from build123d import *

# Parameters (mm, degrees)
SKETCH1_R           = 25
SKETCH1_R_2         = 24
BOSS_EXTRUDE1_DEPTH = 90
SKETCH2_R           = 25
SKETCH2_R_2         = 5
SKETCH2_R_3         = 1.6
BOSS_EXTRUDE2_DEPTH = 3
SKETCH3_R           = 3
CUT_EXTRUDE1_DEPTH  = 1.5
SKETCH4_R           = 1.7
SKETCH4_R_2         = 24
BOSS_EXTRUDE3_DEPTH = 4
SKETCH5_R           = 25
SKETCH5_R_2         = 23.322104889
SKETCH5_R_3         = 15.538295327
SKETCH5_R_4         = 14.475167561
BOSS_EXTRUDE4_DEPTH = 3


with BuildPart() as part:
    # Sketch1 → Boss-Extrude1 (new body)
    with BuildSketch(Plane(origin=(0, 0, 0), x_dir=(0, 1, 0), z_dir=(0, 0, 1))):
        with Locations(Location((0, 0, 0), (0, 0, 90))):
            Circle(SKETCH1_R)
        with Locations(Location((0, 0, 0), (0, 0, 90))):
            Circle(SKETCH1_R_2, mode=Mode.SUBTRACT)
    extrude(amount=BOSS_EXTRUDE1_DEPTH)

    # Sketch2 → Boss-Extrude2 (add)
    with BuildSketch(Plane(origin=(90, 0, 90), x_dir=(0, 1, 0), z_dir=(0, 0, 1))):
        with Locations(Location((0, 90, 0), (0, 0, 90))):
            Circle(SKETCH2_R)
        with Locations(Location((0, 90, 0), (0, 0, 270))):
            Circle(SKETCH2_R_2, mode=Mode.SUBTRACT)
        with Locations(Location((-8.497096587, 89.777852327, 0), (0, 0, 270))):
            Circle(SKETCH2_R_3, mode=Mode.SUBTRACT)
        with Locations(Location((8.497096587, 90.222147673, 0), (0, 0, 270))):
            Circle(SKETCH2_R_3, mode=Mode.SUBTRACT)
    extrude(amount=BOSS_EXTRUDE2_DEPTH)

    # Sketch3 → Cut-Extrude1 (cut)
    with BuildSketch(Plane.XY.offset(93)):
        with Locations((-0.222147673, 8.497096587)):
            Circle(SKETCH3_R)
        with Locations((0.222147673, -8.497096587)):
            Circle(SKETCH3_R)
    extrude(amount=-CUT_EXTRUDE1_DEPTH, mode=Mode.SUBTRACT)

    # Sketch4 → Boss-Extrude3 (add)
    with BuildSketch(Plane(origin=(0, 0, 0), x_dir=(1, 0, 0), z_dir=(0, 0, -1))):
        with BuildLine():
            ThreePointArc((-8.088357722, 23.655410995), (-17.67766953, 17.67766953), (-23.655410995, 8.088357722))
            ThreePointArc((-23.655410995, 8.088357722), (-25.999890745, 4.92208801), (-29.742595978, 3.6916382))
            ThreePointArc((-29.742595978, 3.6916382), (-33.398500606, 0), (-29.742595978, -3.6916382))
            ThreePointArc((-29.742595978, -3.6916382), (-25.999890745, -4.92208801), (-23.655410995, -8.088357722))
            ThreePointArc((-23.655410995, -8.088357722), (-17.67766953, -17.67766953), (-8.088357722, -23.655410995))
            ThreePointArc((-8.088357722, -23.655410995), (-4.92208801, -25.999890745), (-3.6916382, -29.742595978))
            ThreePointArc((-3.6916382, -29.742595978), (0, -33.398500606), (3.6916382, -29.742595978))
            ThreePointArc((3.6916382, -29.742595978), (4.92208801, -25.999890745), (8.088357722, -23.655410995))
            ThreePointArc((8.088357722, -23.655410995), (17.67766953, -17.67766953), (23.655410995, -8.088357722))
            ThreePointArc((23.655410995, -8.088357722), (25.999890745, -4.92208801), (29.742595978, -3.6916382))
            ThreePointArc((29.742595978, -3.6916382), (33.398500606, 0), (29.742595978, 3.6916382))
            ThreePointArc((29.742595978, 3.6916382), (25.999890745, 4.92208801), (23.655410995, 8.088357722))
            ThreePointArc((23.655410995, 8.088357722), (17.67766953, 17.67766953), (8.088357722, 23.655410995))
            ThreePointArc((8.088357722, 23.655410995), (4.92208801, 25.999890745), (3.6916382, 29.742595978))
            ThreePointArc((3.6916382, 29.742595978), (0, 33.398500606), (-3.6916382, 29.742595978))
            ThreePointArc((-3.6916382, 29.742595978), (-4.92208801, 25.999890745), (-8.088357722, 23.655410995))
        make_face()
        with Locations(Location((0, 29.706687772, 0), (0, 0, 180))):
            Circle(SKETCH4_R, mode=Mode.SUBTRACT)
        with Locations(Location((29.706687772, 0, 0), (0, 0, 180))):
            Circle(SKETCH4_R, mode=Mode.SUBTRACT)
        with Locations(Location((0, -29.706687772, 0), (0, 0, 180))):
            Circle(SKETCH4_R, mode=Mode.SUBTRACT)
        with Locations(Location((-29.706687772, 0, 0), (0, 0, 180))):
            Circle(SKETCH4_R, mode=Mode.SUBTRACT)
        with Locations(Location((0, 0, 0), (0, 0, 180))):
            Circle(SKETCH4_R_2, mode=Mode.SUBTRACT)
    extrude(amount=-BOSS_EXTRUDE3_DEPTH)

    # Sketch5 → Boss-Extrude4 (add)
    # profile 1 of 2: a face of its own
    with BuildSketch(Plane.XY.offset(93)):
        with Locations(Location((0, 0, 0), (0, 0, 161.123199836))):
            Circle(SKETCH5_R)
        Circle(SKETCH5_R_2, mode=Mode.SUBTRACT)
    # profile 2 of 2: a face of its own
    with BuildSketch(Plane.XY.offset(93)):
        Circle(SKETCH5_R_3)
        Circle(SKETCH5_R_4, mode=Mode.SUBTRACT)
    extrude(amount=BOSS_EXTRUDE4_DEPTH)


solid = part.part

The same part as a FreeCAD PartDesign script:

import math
import FreeCAD as App
import Part
import Sketcher

V = App.Vector
Q = App.Units.Quantity

doc = App.newDocument("Part")
body = doc.addObject("PartDesign::Body", "Body")

# Sketch on XY plane
sketch1 = doc.addObject("Sketcher::SketchObject", "Sketch")
body.addObject(sketch1)
sketch1.AttachmentSupport = (doc.XY_Plane, [""])
sketch1.MapMode = "FlatFace"
sketch1.addGeometry(Part.Circle(V(0, 0, 0), V(0, 0, 1), 25), False)
sketch1.addGeometry(Part.Circle(V(0, 0, 0), V(0, 0, 1), 24), False)
sketch1.addConstraint(Sketcher.Constraint("Coincident", 0, 3, -1, 1))
sketch1.addConstraint(Sketcher.Constraint("Coincident", 1, 3, -1, 1))
sketch1.addConstraint(Sketcher.Constraint("Diameter", 0, Q("50 mm")))
sketch1.addConstraint(Sketcher.Constraint("Diameter", 1, Q("48 mm")))
pad1 = doc.addObject("PartDesign::Pad", "Pad")
body.addObject(pad1)
pad1.Profile = sketch1
pad1.Length = 90

# Sketch on XY plane
sketch2 = doc.addObject("Sketcher::SketchObject", "Sketch001")
body.addObject(sketch2)
sketch2.AttachmentSupport = (doc.XY_Plane, [""])
sketch2.MapMode = "FlatFace"
sketch2.AttachmentOffset = App.Placement(V(0, 0, 90), App.Rotation())
sketch2.addGeometry(Part.Circle(V(0, 0, 0), V(0, 0, 1), 25), False)
sketch2.addGeometry(Part.Circle(V(-0.222148, 8.497097, 0), V(0, 0, 1), 1.6), False)
sketch2.addGeometry(Part.Circle(V(0.222148, -8.497097, 0), V(0, 0, 1), 1.6), False)
sketch2.addGeometry(Part.Circle(V(0, 0, 0), V(0, 0, 1), 5), False)
sketch2.addConstraint(Sketcher.Constraint("Coincident", 0, 3, -1, 1))
sketch2.addConstraint(Sketcher.Constraint("Coincident", 3, 3, -1, 1))
sketch2.addConstraint(Sketcher.Constraint("Equal", 1, 2))
sketch2.addConstraint(Sketcher.Constraint("Symmetric", 1, 3, 2, 3, -1, 1))
sketch2.addConstraint(Sketcher.Constraint("Diameter", 0, Q("50 mm")))
sketch2.addConstraint(Sketcher.Constraint("Diameter", 3, Q("10 mm")))
sketch2.addConstraint(Sketcher.Constraint("Diameter", 1, Q("3.2 mm")))
sketch2.addConstraint(Sketcher.Constraint("DistanceX", 1, 3, -1, 1, Q("0.222148 mm")))
sketch2.addConstraint(Sketcher.Constraint("DistanceY", -1, 1, 1, 3, Q("8.497097 mm")))
pad2 = doc.addObject("PartDesign::Pad", "Pad001")
body.addObject(pad2)
pad2.Profile = sketch2
pad2.Length = 3

# Sketch on XY plane
sketch3 = doc.addObject("Sketcher::SketchObject", "Sketch002")
body.addObject(sketch3)
sketch3.AttachmentSupport = (doc.XY_Plane, [""])
sketch3.MapMode = "FlatFace"
sketch3.AttachmentOffset = App.Placement(V(0, 0, 93), App.Rotation())
sketch3.addGeometry(Part.Circle(V(-0.222148, 8.497097, 0), V(0, 0, 1), 3), False)
sketch3.addGeometry(Part.Circle(V(0.222148, -8.497097, 0), V(0, 0, 1), 3), False)
sketch3.addConstraint(Sketcher.Constraint("Equal", 0, 1))
sketch3.addConstraint(Sketcher.Constraint("Symmetric", 0, 3, 1, 3, -1, 1))
sketch3.addConstraint(Sketcher.Constraint("Diameter", 0, Q("6 mm")))
sketch3.addConstraint(Sketcher.Constraint("DistanceX", 0, 3, -1, 1, Q("0.222148 mm")))
sketch3.addConstraint(Sketcher.Constraint("DistanceY", -1, 1, 0, 3, Q("8.497097 mm")))
pocket1 = doc.addObject("PartDesign::Pocket", "Pocket")
body.addObject(pocket1)
pocket1.Profile = sketch3
pocket1.Length = 1.5

# Sketch on XY plane
sketch4 = doc.addObject("Sketcher::SketchObject", "Sketch003")
body.addObject(sketch4)
sketch4.AttachmentSupport = (doc.XY_Plane, [""])
sketch4.MapMode = "FlatFace"
sketch4.addGeometry(Part.ArcOfCircle(Part.Circle(V(0, 0, 0), V(0, 0, 1), 25), math.radians(-161.1232), math.radians(-108.8768)), False)
sketch4.addGeometry(Part.ArcOfCircle(Part.Circle(V(-29.805818, -10.191331, 0), V(0, 0, 1), 6.5), math.radians(18.8768), math.radians(89.442707)), False)
sketch4.addGeometry(Part.ArcOfCircle(Part.Circle(V(-29.706688, 0, 0), V(0, 0, 1), 3.691813), math.radians(90.557293), math.radians(269.442707)), False)
sketch4.addGeometry(Part.ArcOfCircle(Part.Circle(V(-29.805818, 10.191331, 0), V(0, 0, 1), 6.5), math.radians(-89.442707), math.radians(-18.8768)), False)
sketch4.addGeometry(Part.ArcOfCircle(Part.Circle(V(0, 0, 0), V(0, 0, 1), 25), math.radians(108.8768), math.radians(161.1232)), False)
sketch4.addGeometry(Part.ArcOfCircle(Part.Circle(V(-10.191331, 29.805818, 0), V(0, 0, 1), 6.5), math.radians(-71.1232), math.radians(-0.557293)), False)
sketch4.addGeometry(Part.ArcOfCircle(Part.Circle(V(0, 29.706688, 0), V(0, 0, 1), 3.691813), math.radians(0.557293), math.radians(179.442707)), False)
sketch4.addGeometry(Part.ArcOfCircle(Part.Circle(V(10.191331, 29.805818, 0), V(0, 0, 1), 6.5), math.radians(-179.442707), math.radians(-108.8768)), False)
sketch4.addGeometry(Part.ArcOfCircle(Part.Circle(V(0, 0, 0), V(0, 0, 1), 25), math.radians(18.8768), math.radians(71.1232)), False)
sketch4.addGeometry(Part.ArcOfCircle(Part.Circle(V(29.805818, 10.191331, 0), V(0, 0, 1), 6.5), math.radians(-161.1232), math.radians(-90.557293)), False)
sketch4.addGeometry(Part.ArcOfCircle(Part.Circle(V(29.706688, 0, 0), V(0, 0, 1), 3.691813), math.radians(-89.442707), math.radians(89.442707)), False)
sketch4.addGeometry(Part.ArcOfCircle(Part.Circle(V(29.805818, -10.191331, 0), V(0, 0, 1), 6.5), math.radians(90.557293), math.radians(161.1232)), False)
sketch4.addGeometry(Part.ArcOfCircle(Part.Circle(V(0, 0, 0), V(0, 0, 1), 25), math.radians(-71.1232), math.radians(-18.8768)), False)
sketch4.addGeometry(Part.ArcOfCircle(Part.Circle(V(10.191331, -29.805818, 0), V(0, 0, 1), 6.5), math.radians(108.8768), math.radians(179.442707)), False)
sketch4.addGeometry(Part.ArcOfCircle(Part.Circle(V(0, -29.706688, 0), V(0, 0, 1), 3.691813), math.radians(-179.442707), math.radians(-0.557293)), False)
sketch4.addGeometry(Part.ArcOfCircle(Part.Circle(V(-10.191331, -29.805818, 0), V(0, 0, 1), 6.5), math.radians(0.557293), math.radians(71.1232)), False)
sketch4.addGeometry(Part.Circle(V(0, 29.706688, 0), V(0, 0, 1), 1.7), False)
sketch4.addGeometry(Part.Circle(V(-29.706688, 0, 0), V(0, 0, 1), 1.7), False)
sketch4.addGeometry(Part.Circle(V(0, 0, 0), V(0, 0, 1), 24), False)
sketch4.addGeometry(Part.Circle(V(29.706688, 0, 0), V(0, 0, 1), 1.7), False)
sketch4.addGeometry(Part.Circle(V(0, -29.706688, 0), V(0, 0, 1), 1.7), False)
sketch4.addConstraint(Sketcher.Constraint("Tangent", 0, 1, 1, 1))
sketch4.addConstraint(Sketcher.Constraint("Tangent", 1, 2, 2, 2))
sketch4.addConstraint(Sketcher.Constraint("Tangent", 2, 1, 3, 1))
sketch4.addConstraint(Sketcher.Constraint("Tangent", 3, 2, 4, 2))
sketch4.addConstraint(Sketcher.Constraint("Tangent", 4, 1, 5, 1))
sketch4.addConstraint(Sketcher.Constraint("Tangent", 5, 2, 6, 2))
sketch4.addConstraint(Sketcher.Constraint("Tangent", 6, 1, 7, 1))
sketch4.addConstraint(Sketcher.Constraint("Tangent", 7, 2, 8, 2))
sketch4.addConstraint(Sketcher.Constraint("Tangent", 8, 1, 9, 1))
sketch4.addConstraint(Sketcher.Constraint("Tangent", 9, 2, 10, 2))
sketch4.addConstraint(Sketcher.Constraint("Tangent", 10, 1, 11, 1))
sketch4.addConstraint(Sketcher.Constraint("Tangent", 11, 2, 12, 2))
sketch4.addConstraint(Sketcher.Constraint("Tangent", 12, 1, 13, 1))
sketch4.addConstraint(Sketcher.Constraint("Tangent", 13, 2, 14, 2))
sketch4.addConstraint(Sketcher.Constraint("Tangent", 14, 1, 15, 1))
sketch4.addConstraint(Sketcher.Constraint("Tangent", 15, 2, 0, 2))
sketch4.addConstraint(Sketcher.Constraint("Coincident", 0, 3, -1, 1))
sketch4.addConstraint(Sketcher.Constraint("Coincident", 4, 3, -1, 1))
sketch4.addConstraint(Sketcher.Constraint("Coincident", 8, 3, -1, 1))
sketch4.addConstraint(Sketcher.Constraint("Coincident", 12, 3, -1, 1))
sketch4.addConstraint(Sketcher.Constraint("Coincident", 18, 3, -1, 1))
sketch4.addConstraint(Sketcher.Constraint("Coincident", 16, 3, 6, 3))
sketch4.addConstraint(Sketcher.Constraint("Coincident", 17, 3, 2, 3))
sketch4.addConstraint(Sketcher.Constraint("Coincident", 19, 3, 10, 3))
sketch4.addConstraint(Sketcher.Constraint("Coincident", 20, 3, 14, 3))
sketch4.addConstraint(Sketcher.Constraint("Equal", 1, 3))
sketch4.addConstraint(Sketcher.Constraint("Equal", 0, 4))
sketch4.addConstraint(Sketcher.Constraint("Equal", 3, 5))
sketch4.addConstraint(Sketcher.Constraint("Equal", 2, 6))
sketch4.addConstraint(Sketcher.Constraint("Equal", 5, 7))
sketch4.addConstraint(Sketcher.Constraint("Equal", 4, 8))
sketch4.addConstraint(Sketcher.Constraint("Equal", 7, 9))
sketch4.addConstraint(Sketcher.Constraint("Equal", 6, 10))
sketch4.addConstraint(Sketcher.Constraint("Equal", 9, 11))
sketch4.addConstraint(Sketcher.Constraint("Equal", 8, 12))
sketch4.addConstraint(Sketcher.Constraint("Equal", 11, 13))
sketch4.addConstraint(Sketcher.Constraint("Equal", 10, 14))
sketch4.addConstraint(Sketcher.Constraint("Equal", 13, 15))
sketch4.addConstraint(Sketcher.Constraint("Equal", 16, 17))
sketch4.addConstraint(Sketcher.Constraint("Equal", 17, 19))
sketch4.addConstraint(Sketcher.Constraint("Equal", 19, 20))
sketch4.addConstraint(Sketcher.Constraint("Symmetric", 2, 3, 10, 3, -1, 1))
sketch4.addConstraint(Sketcher.Constraint("Symmetric", 6, 3, 14, 3, -1, 1))
sketch4.addConstraint(Sketcher.Constraint("PointOnObject", 2, 3, -1))
sketch4.addConstraint(Sketcher.Constraint("PointOnObject", 6, 3, -2))
sketch4.addConstraint(Sketcher.Constraint("Diameter", 18, Q("48 mm")))
sketch4.addConstraint(Sketcher.Constraint("Radius", 0, Q("25 mm")))
sketch4.addConstraint(Sketcher.Constraint("Diameter", 16, Q("3.4 mm")))
sketch4.addConstraint(Sketcher.Constraint("Radius", 1, Q("6.5 mm")))
sketch4.addConstraint(Sketcher.Constraint("Radius", 2, Q("3.691813 mm")))
sketch4.addConstraint(Sketcher.Constraint("DistanceY", 1, 3, -1, 1, Q("10.191331 mm")))
sketch4.addConstraint(Sketcher.Constraint("DistanceX", 5, 3, -1, 1, Q("10.191331 mm")))
pad3 = doc.addObject("PartDesign::Pad", "Pad002")
body.addObject(pad3)
pad3.Profile = sketch4
pad3.Length = 4

# Sketch on XY plane
sketch5 = doc.addObject("Sketcher::SketchObject", "Sketch004")
body.addObject(sketch5)
sketch5.AttachmentSupport = (doc.XY_Plane, [""])
sketch5.MapMode = "FlatFace"
sketch5.AttachmentOffset = App.Placement(V(0, 0, 93), App.Rotation())
sketch5.addGeometry(Part.Circle(V(0, 0, 0), V(0, 0, 1), 25), False)
sketch5.addGeometry(Part.Circle(V(0, 0, 0), V(0, 0, 1), 23.322105), False)
sketch5.addGeometry(Part.Circle(V(0, 0, 0), V(0, 0, 1), 15.538295), False)
sketch5.addGeometry(Part.Circle(V(0, 0, 0), V(0, 0, 1), 14.475168), False)
sketch5.addConstraint(Sketcher.Constraint("Coincident", 0, 3, -1, 1))
sketch5.addConstraint(Sketcher.Constraint("Coincident", 1, 3, -1, 1))
sketch5.addConstraint(Sketcher.Constraint("Coincident", 2, 3, -1, 1))
sketch5.addConstraint(Sketcher.Constraint("Coincident", 3, 3, -1, 1))
sketch5.addConstraint(Sketcher.Constraint("Diameter", 0, Q("50 mm")))
sketch5.addConstraint(Sketcher.Constraint("Diameter", 1, Q("46.64421 mm")))
sketch5.addConstraint(Sketcher.Constraint("Diameter", 2, Q("31.076591 mm")))
sketch5.addConstraint(Sketcher.Constraint("Diameter", 3, Q("28.950335 mm")))
pad4 = doc.addObject("PartDesign::Pad", "Pad003")
body.addObject(pad4)
pad4.Profile = sketch5
pad4.Length = 3

doc.recompute()
